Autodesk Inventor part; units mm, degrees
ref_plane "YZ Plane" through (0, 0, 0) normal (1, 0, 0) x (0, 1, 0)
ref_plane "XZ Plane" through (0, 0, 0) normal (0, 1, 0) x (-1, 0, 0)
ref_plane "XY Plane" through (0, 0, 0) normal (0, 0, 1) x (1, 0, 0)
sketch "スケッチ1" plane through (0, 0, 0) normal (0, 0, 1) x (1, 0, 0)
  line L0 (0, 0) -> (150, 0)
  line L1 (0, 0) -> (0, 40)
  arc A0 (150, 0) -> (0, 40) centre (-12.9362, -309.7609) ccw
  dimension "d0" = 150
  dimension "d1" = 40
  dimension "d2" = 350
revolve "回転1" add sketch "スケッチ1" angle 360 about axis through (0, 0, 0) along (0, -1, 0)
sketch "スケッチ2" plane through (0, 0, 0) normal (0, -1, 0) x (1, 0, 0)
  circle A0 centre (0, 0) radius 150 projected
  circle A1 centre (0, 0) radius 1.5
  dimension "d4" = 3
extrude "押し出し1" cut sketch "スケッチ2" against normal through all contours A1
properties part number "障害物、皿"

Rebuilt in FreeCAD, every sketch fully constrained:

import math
import FreeCAD as App
import Part
import Sketcher
from FreeCAD import Vector
Q = App.Units.Quantity

doc = App.newDocument("Part")
body = doc.addObject("PartDesign::Body", "Body")

sketch1 = body.newObject("Sketcher::SketchObject", "Sketch")
sketch1.AttachmentSupport = (doc.getObject("XY_Plane"), [""])
sketch1.MapMode = "FlatFace"
sketch1.addGeometry([
    Part.LineSegment(Vector(0, 40, 0), Vector(0, 0, 0)),
    Part.LineSegment(Vector(0, 0, 0), Vector(150, 0, 0)),
    Part.ArcOfCircle(Part.Circle(Vector(-13, -310, 0), Vector(0, 0, 1), 350), math.radians(62), math.radians(88)),
], False)
sketch1.addConstraint([
    Sketcher.Constraint("Coincident", 0, 2, 1, 1),
    Sketcher.Constraint("Coincident", 1, 2, 2, 1),
    Sketcher.Constraint("Coincident", 2, 2, 0, 1),
    Sketcher.Constraint("Vertical", 0),
    Sketcher.Constraint("Horizontal", 1),
    Sketcher.Constraint("Coincident", 0, 2, -1, 1),
    Sketcher.Constraint("Radius", 2, Q("350 mm")),
    Sketcher.Constraint("DistanceX", 1, 1, 1, 2, Q("150 mm")),
    Sketcher.Constraint("DistanceY", 0, 2, 0, 1, Q("40 mm")),
])
revolution = body.newObject("PartDesign::Revolution", "Revolution")
revolution.Profile = sketch1
revolution.ReferenceAxis = (sketch1, ["V_Axis"])
revolution.Angle = 360

sketch2 = body.newObject("Sketcher::SketchObject", "Sketch001")
sketch2.AttachmentSupport = (doc.getObject("XZ_Plane"), [""])
sketch2.MapMode = "FlatFace"
sketch2.addGeometry(Part.Circle(Vector(0, 0, 0), Vector(0, 0, 1), 1.5), False)
sketch2.addConstraint([
    Sketcher.Constraint("Coincident", 0, 3, -1, 1),
    Sketcher.Constraint("Diameter", 0, Q("3 mm")),
])
pocket1 = body.newObject("PartDesign::Pocket", "Pocket")
pocket1.Profile = sketch2
pocket1.Type = "ThroughAll"

doc.recompute()
